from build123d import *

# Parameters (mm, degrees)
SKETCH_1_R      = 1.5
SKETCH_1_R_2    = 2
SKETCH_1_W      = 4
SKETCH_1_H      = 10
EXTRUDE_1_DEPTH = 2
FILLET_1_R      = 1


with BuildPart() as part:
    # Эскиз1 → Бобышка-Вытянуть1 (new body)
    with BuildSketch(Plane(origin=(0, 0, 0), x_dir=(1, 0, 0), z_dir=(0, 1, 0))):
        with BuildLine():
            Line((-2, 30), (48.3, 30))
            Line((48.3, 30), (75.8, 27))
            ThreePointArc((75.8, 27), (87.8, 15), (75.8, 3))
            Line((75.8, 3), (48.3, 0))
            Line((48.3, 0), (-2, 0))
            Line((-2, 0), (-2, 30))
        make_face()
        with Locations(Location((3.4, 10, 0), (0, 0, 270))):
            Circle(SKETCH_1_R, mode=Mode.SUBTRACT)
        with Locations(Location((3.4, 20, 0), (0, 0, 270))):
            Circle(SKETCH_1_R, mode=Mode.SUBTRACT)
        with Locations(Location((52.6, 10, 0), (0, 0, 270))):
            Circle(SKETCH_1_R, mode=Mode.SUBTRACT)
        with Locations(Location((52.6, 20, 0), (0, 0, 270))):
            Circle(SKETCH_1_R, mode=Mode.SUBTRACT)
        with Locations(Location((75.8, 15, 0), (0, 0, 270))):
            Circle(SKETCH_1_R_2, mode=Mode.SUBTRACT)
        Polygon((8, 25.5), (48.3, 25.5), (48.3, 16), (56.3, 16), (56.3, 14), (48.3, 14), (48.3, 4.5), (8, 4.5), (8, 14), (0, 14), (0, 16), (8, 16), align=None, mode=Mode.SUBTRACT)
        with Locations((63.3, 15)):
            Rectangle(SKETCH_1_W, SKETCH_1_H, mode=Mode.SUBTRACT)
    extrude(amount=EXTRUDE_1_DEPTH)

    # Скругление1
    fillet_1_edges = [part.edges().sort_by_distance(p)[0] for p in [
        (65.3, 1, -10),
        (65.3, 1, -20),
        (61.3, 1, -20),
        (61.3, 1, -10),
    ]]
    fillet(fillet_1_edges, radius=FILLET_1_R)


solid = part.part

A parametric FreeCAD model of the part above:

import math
import FreeCAD as App
import Part
import Sketcher

V = App.Vector


def edges_at(feature, points):
    """Names of the edges that pass closest to the given points."""
    edges = feature.Shape.Edges
    near = lambda p: min(range(len(edges)), key=lambda i: edges[i].distToShape(Part.Vertex(*p))[0])
    return sorted({f"Edge{near(p) + 1}" for p in points})


def add_polygon(sketch, points):
    """Adds a closed chain of lines whose ends are joined by coincident constraints."""
    first, n = sketch.GeometryCount, len(points)
    for a, b in zip(points, points[1:] + points[:1]):
        sketch.addGeometry(Part.LineSegment(App.Vector(*a, 0), App.Vector(*b, 0)), False)
    for i in range(n):
        sketch.addConstraint(Sketcher.Constraint("Coincident", first + i, 2, first + (i + 1) % n, 1))

doc = App.newDocument("Part")
body = doc.addObject("PartDesign::Body", "Body")

sketch1 = body.newObject("Sketcher::SketchObject", "Sketch")
sketch1.AttachmentSupport = (doc.getObject("XZ_Plane"), [""])
sketch1.MapMode = "FlatFace"
sketch1.addGeometry(Part.LineSegment(V(48.3, -30, 0), V(-2, -30, 0)), False)
sketch1.addGeometry(Part.LineSegment(V(-2, -30, 0), V(-2, 0, 0)), False)
sketch1.addGeometry(Part.LineSegment(V(-2, 0, 0), V(48.3, 0, 0)), False)
sketch1.addGeometry(Part.LineSegment(V(48.3, 0, 0), V(75.8, -3, 0)), False)
sketch1.addGeometry(Part.ArcOfCircle(Part.Circle(V(75.8, -15, 0), V(0, 0, 1), 12), math.radians(-90), math.radians(90)), False)
sketch1.addGeometry(Part.LineSegment(V(75.8, -27, 0), V(48.3, -30, 0)), False)
sketch1.addGeometry(Part.Circle(V(52.6, -10, 0), V(0, 0, 1), 1.5), False)
sketch1.addGeometry(Part.Circle(V(3.4, -10, 0), V(0, 0, 1), 1.5), False)
sketch1.addGeometry(Part.Circle(V(75.8, -15, 0), V(0, 0, 1), 2), False)
add_polygon(sketch1, [(61.3, -10), (61.3, -20), (65.3, -20), (65.3, -10)])
sketch1.addGeometry(Part.Circle(V(52.6, -20, 0), V(0, 0, 1), 1.5), False)
add_polygon(sketch1, [(8, -25.5), (48.3, -25.5), (48.3, -16), (56.3, -16), (56.3, -14), (48.3, -14), (48.3, -4.5), (8, -4.5), (8, -14), (0, -14), (0, -16), (8, -16)])
sketch1.addGeometry(Part.Circle(V(3.4, -20, 0), V(0, 0, 1), 1.5), False)
sketch1.addConstraint(Sketcher.Constraint("Coincident", 0, 2, 1, 1))
sketch1.addConstraint(Sketcher.Constraint("Coincident", 1, 2, 2, 1))
sketch1.addConstraint(Sketcher.Constraint("Coincident", 2, 2, 3, 1))
sketch1.addConstraint(Sketcher.Constraint("Coincident", 3, 2, 4, 2))
sketch1.addConstraint(Sketcher.Constraint("Coincident", 4, 1, 5, 1))
sketch1.addConstraint(Sketcher.Constraint("Coincident", 5, 2, 0, 1))
sketch1.addConstraint(Sketcher.Constraint("Horizontal", 0))
sketch1.addConstraint(Sketcher.Constraint("Vertical", 1))
sketch1.addConstraint(Sketcher.Constraint("Horizontal", 2))
sketch1.addConstraint(Sketcher.Constraint("Vertical", 9))
sketch1.addConstraint(Sketcher.Constraint("Horizontal", 10))
sketch1.addConstraint(Sketcher.Constraint("Vertical", 11))
sketch1.addConstraint(Sketcher.Constraint("Horizontal", 12))
sketch1.addConstraint(Sketcher.Constraint("Horizontal", 14))
sketch1.addConstraint(Sketcher.Constraint("Vertical", 15))
sketch1.addConstraint(Sketcher.Constraint("Horizontal", 16))
sketch1.addConstraint(Sketcher.Constraint("Vertical", 17))
sketch1.addConstraint(Sketcher.Constraint("Horizontal", 18))
sketch1.addConstraint(Sketcher.Constraint("Vertical", 19))
sketch1.addConstraint(Sketcher.Constraint("Horizontal", 20))
sketch1.addConstraint(Sketcher.Constraint("Vertical", 21))
sketch1.addConstraint(Sketcher.Constraint("Horizontal", 22))
sketch1.addConstraint(Sketcher.Constraint("Vertical", 23))
sketch1.addConstraint(Sketcher.Constraint("Horizontal", 24))
sketch1.addConstraint(Sketcher.Constraint("Vertical", 25))
sketch1.addConstraint(Sketcher.Constraint("Coincident", 8, 3, 4, 3))
sketch1.addConstraint(Sketcher.Constraint("Equal", 6, 7))
sketch1.addConstraint(Sketcher.Constraint("Equal", 7, 13))
sketch1.addConstraint(Sketcher.Constraint("Equal", 13, 26))
sketch1.addConstraint(Sketcher.Constraint("PointOnObject", 1, 2, -1))
sketch1.addConstraint(Sketcher.Constraint("PointOnObject", 22, 2, -2))
sketch1.addConstraint(Sketcher.Constraint("Horizontal", 6, 3, 7, 3))
sketch1.addConstraint(Sketcher.Constraint("Horizontal", 13, 3, 26, 3))
sketch1.addConstraint(Sketcher.Constraint("Horizontal", 26, 3, 9, 2))
sketch1.addConstraint(Sketcher.Constraint("Horizontal", 7, 3, 11, 2))
sketch1.addConstraint(Sketcher.Constraint("Horizontal", 18, 2, 21, 2))
sketch1.addConstraint(Sketcher.Constraint("Horizontal", 16, 2, 23, 2))
sketch1.addConstraint(Sketcher.Constraint("Vertical", 6, 3, 13, 3))
sketch1.addConstraint(Sketcher.Constraint("Vertical", 7, 3, 26, 3))
sketch1.addConstraint(Sketcher.Constraint("Vertical", 8, 3, 3, 2))
sketch1.addConstraint(Sketcher.Constraint("Vertical", 3, 2, 4, 1))
sketch1.addConstraint(Sketcher.Constraint("Vertical", 2, 2, 5, 2))
sketch1.addConstraint(Sketcher.Constraint("Vertical", 5, 2, 14, 2))
sketch1.addConstraint(Sketcher.Constraint("Vertical", 15, 2, 18, 2))
sketch1.addConstraint(Sketcher.Constraint("Vertical", 21, 2, 24, 2))
sketch1.addConstraint(Sketcher.Constraint("Equal", 18, 22))
sketch1.addConstraint(Sketcher.Constraint("Equal", 15, 19))
sketch1.addConstraint(Sketcher.Constraint("Equal", 3, 5))
sketch1.addConstraint(Sketcher.Constraint("Diameter", 6, 3.0))
sketch1.addConstraint(Sketcher.Constraint("Diameter", 8, 4.0))
sketch1.addConstraint(Sketcher.Constraint("Radius", 4, 12.0))
sketch1.addConstraint(Sketcher.Constraint("DistanceX", 10, 1, 10, 2, 4.0))
sketch1.addConstraint(Sketcher.Constraint("DistanceX", 16, 1, 16, 2, 8.0))
sketch1.addConstraint(Sketcher.Constraint("DistanceY", 1, 1, 1, 2, 30.0))
sketch1.addConstraint(Sketcher.Constraint("DistanceY", 9, 2, 9, 1, 10.0))
sketch1.addConstraint(Sketcher.Constraint("DistanceY", 17, 1, 17, 2, 2.0))
sketch1.addConstraint(Sketcher.Constraint("DistanceX", 0, 2, 0, 1, 50.3))
sketch1.addConstraint(Sketcher.Constraint("DistanceX", 14, 1, 14, 2, 40.3))
sketch1.addConstraint(Sketcher.Constraint("DistanceY", 15, 1, 15, 2, 9.5))
sketch1.addConstraint(Sketcher.Constraint("DistanceY", 6, 3, -1, 1, 10.0))
sketch1.addConstraint(Sketcher.Constraint("DistanceY", 15, 2, -1, 1, 16.0))
sketch1.addConstraint(Sketcher.Constraint("DistanceX", 14, 2, 9, 2, 13.0))
sketch1.addConstraint(Sketcher.Constraint("DistanceX", -1, 1, 4, 3, 75.8))
sketch1.addConstraint(Sketcher.Constraint("DistanceX", -1, 1, 6, 3, 52.6))
sketch1.addConstraint(Sketcher.Constraint("DistanceX", -1, 1, 7, 3, 3.4))
pad1 = body.newObject("PartDesign::Pad", "Pad")
pad1.Profile = sketch1
pad1.Length = 2
pad1.Reversed = True
doc.recompute()

fillet = body.newObject("PartDesign::Fillet", "Fillet")
fillet.Base = (pad1, edges_at(pad1, [
    (65.3, 1, -10),
    (65.3, 1, -20),
    (61.3, 1, -20),
    (61.3, 1, -10),
]))
fillet.Radius = 1

doc.recompute()
